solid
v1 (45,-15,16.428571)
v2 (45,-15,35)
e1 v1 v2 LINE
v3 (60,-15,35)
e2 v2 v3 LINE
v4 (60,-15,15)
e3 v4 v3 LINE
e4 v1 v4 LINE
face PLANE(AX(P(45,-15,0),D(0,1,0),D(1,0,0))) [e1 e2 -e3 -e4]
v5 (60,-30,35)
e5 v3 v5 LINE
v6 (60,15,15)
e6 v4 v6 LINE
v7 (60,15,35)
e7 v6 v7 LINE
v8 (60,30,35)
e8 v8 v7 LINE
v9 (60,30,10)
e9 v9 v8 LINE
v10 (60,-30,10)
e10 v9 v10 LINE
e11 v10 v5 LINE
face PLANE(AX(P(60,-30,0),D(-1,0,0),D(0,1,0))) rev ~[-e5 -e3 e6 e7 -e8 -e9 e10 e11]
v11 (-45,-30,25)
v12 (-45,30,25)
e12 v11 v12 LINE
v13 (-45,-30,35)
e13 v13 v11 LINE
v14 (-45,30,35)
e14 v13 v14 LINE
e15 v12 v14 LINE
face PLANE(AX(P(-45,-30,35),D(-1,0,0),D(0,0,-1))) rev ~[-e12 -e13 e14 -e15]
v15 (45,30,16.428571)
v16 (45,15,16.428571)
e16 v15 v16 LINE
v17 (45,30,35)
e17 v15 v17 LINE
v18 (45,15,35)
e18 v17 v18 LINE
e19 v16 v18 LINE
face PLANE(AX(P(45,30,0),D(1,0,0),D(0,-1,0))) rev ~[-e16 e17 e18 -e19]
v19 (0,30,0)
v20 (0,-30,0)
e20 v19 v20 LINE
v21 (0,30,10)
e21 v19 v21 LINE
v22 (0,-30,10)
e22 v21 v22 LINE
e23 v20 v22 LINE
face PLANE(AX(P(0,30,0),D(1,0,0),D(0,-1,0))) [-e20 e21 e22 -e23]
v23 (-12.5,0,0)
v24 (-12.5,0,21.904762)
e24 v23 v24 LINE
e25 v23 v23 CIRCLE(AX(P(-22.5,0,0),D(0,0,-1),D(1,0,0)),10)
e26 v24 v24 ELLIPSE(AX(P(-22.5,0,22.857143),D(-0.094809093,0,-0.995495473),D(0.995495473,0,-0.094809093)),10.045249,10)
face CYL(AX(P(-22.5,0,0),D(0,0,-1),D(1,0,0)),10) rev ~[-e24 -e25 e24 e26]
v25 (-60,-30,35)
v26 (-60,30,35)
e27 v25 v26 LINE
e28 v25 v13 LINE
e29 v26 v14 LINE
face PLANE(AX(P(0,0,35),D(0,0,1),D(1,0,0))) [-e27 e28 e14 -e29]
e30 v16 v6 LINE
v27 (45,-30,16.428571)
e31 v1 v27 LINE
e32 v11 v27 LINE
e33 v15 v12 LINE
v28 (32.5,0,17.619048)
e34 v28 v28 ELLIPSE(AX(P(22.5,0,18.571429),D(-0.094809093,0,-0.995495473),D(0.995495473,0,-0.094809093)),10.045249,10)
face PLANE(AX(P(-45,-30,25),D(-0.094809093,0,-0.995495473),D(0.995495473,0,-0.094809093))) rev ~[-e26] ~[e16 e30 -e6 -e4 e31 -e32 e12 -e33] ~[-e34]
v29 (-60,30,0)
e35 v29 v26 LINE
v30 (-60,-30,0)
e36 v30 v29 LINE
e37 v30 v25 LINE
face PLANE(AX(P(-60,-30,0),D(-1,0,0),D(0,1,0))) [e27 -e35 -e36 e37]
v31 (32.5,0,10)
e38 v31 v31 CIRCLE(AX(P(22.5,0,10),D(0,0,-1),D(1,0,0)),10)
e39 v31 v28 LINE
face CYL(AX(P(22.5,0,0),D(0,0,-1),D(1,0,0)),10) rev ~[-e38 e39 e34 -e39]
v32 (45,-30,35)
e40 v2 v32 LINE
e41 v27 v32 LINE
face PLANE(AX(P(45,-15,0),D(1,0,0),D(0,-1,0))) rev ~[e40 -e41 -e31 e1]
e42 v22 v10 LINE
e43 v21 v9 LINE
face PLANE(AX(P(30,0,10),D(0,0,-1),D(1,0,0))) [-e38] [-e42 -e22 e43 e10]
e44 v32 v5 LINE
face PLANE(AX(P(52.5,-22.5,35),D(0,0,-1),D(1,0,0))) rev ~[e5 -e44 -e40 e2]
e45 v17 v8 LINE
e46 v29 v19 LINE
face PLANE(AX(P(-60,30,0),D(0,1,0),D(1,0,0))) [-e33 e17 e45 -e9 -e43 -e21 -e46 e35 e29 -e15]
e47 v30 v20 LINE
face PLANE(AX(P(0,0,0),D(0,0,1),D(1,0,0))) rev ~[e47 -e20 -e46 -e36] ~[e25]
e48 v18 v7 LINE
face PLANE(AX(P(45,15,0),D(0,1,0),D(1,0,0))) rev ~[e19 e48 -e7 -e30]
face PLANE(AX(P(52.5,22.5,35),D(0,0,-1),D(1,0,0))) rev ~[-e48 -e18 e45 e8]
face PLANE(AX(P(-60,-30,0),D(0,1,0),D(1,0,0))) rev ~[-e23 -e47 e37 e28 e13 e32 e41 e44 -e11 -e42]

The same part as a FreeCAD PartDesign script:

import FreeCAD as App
import Part
import Sketcher

V = App.Vector
Q = App.Units.Quantity


def add_polygon(sketch, points):
    """Adds a closed chain of lines whose ends are joined by coincident constraints."""
    first, n = sketch.GeometryCount, len(points)
    for a, b in zip(points, points[1:] + points[:1]):
        sketch.addGeometry(Part.LineSegment(App.Vector(*a, 0), App.Vector(*b, 0)), False)
    for i in range(n):
        sketch.addConstraint(Sketcher.Constraint("Coincident", first + i, 2, first + (i + 1) % n, 1))

doc = App.newDocument("Part")
params = doc.addObject("Spreadsheet::Sheet", "Params")
for row, (alias, value) in enumerate([
    ("sketch1_width", "120 mm"),
    ("sketch1_height", "60 mm"),
    ("pad1_length", "35 mm"),
    ("sketch2_width", "105 mm"),
    ("sketch2_height", "10 mm"),
    ("sketch2_height2", "20 mm"),
    ("sketch3_width", "15 mm"),
    ("pad2_length", "35 mm"),
    ("sketch4_diameter", "20 mm"),
    ("sketch5_width", "60 mm"),
    ("pocket3_length", "10 mm"),
], start=1):
    params.set(f"A{row}", alias)
    params.set(f"B{row}", "=" + value)
    params.setAlias(f"B{row}", alias)

body = doc.addObject("PartDesign::Body", "Body")

# Sketch on XY plane
sketch1 = doc.addObject("Sketcher::SketchObject", "Sketch")
body.addObject(sketch1)
sketch1.AttachmentSupport = (doc.XY_Plane, [""])
sketch1.MapMode = "FlatFace"
add_polygon(sketch1, [(-60, 30), (-60, -30), (60, -30), (60, 30)])  # lines 0-3
sketch1.addConstraint([
    Sketcher.Constraint("Vertical", 0),
    Sketcher.Constraint("Horizontal", 1),
    Sketcher.Constraint("Vertical", 2),
    Sketcher.Constraint("Horizontal", 3),
    Sketcher.Constraint("Symmetric", 0, 2, 2, 2, -1, 1),
    Sketcher.Constraint("DistanceX", 1, 1, 1, 2, Q("120 mm")),
    Sketcher.Constraint("DistanceY", 0, 2, 0, 1, Q("60 mm")),
])
sketch1.setExpression("Constraints[9]", "Params.sketch1_width")
sketch1.setExpression("Constraints[10]", "Params.sketch1_height")
pad1 = doc.addObject("PartDesign::Pad", "Pad")
body.addObject(pad1)
pad1.Profile = sketch1
pad1.setExpression("Length", "Params.pad1_length")

# Sketch on XZ plane
sketch2 = doc.addObject("Sketcher::SketchObject", "Sketch001")
body.addObject(sketch2)
sketch2.AttachmentSupport = (doc.XZ_Plane, [""])
sketch2.MapMode = "FlatFace"
sketch2.AttachmentOffset = App.Placement(V(0, 0, 30), App.Rotation())
add_polygon(sketch2, [(-45, 35), (-45, 25), (60, 15), (60, 35)])  # lines 0-3
sketch2.addConstraint([
    Sketcher.Constraint("Vertical", 0),
    Sketcher.Constraint("Vertical", 2),
    Sketcher.Constraint("Horizontal", 3),
    Sketcher.Constraint("DistanceX", 3, 2, 3, 1, Q("105 mm")),
    Sketcher.Constraint("DistanceY", 0, 2, 0, 1, Q("10 mm")),
    Sketcher.Constraint("DistanceY", 2, 1, 2, 2, Q("20 mm")),
    Sketcher.Constraint("DistanceX", 0, 2, -1, 1, Q("45 mm")),
    Sketcher.Constraint("DistanceY", -1, 1, 0, 2, Q("25 mm")),
])
sketch2.setExpression("Constraints[7]", "Params.sketch2_width")
sketch2.setExpression("Constraints[8]", "Params.sketch2_height")
sketch2.setExpression("Constraints[9]", "Params.sketch2_height2")
pocket1 = doc.addObject("PartDesign::Pocket", "Pocket")
body.addObject(pocket1)
pocket1.Profile = sketch2
pocket1.Type = "ThroughAll"

# Sketch on XY plane
sketch3 = doc.addObject("Sketcher::SketchObject", "Sketch002")
body.addObject(sketch3)
sketch3.AttachmentSupport = (doc.XY_Plane, [""])
sketch3.MapMode = "FlatFace"
add_polygon(sketch3, [(45, -30), (45, -15), (60, -15), (60, -30)])  # lines 0-3
add_polygon(sketch3, [(45, 15), (45, 30), (60, 30), (60, 15)])  # lines 4-7
sketch3.addConstraint([
    Sketcher.Constraint("Vertical", 0),
    Sketcher.Constraint("Horizontal", 1),
    Sketcher.Constraint("Vertical", 2),
    Sketcher.Constraint("Horizontal", 3),
    Sketcher.Constraint("Vertical", 4),
    Sketcher.Constraint("Horizontal", 5),
    Sketcher.Constraint("Vertical", 6),
    Sketcher.Constraint("Horizontal", 7),
    Sketcher.Constraint("Symmetric", 3, 2, 4, 2, -1),
    Sketcher.Constraint("Symmetric", 1, 2, 6, 2, -1),
    Sketcher.Constraint("Equal", 7, 0),
    Sketcher.Constraint("DistanceX", 1, 1, 1, 2, Q("15 mm")),
    Sketcher.Constraint("DistanceX", -1, 1, 0, 2, Q("45 mm")),
    Sketcher.Constraint("DistanceY", 0, 2, -1, 1, Q("15 mm")),
])
sketch3.setExpression("Constraints[19]", "Params.sketch3_width")
pad2 = doc.addObject("PartDesign::Pad", "Pad001")
body.addObject(pad2)
pad2.Profile = sketch3
pad2.setExpression("Length", "Params.pad2_length")

# Sketch on XY plane
sketch4 = doc.addObject("Sketcher::SketchObject", "Sketch003")
body.addObject(sketch4)
sketch4.AttachmentSupport = (doc.XY_Plane, [""])
sketch4.MapMode = "FlatFace"
sketch4.addGeometry([
    Part.Circle(V(-22, 0, 0), V(0, 0, 1), 10),
    Part.Circle(V(22, 0, 0), V(0, 0, 1), 10),
], False)
sketch4.addConstraint([
    Sketcher.Constraint("Equal", 0, 1),
    Sketcher.Constraint("Symmetric", 0, 3, 1, 3, -1, 1),
    Sketcher.Constraint("PointOnObject", 0, 3, -1),
    Sketcher.Constraint("Diameter", 0, Q("20 mm")),
    Sketcher.Constraint("DistanceX", 0, 3, 1, 3, Q("45 mm")),
])
sketch4.setExpression("Constraints[3]", "Params.sketch4_diameter")
pocket2 = doc.addObject("PartDesign::Pocket", "Pocket001")
body.addObject(pocket2)
pocket2.Profile = sketch4
pocket2.Type = "ThroughAll"
pocket2.Reversed = True

# Sketch on XY plane
sketch5 = doc.addObject("Sketcher::SketchObject", "Sketch004")
body.addObject(sketch5)
sketch5.AttachmentSupport = (doc.XY_Plane, [""])
sketch5.MapMode = "FlatFace"
add_polygon(sketch5, [(0, -30), (0, 30), (60, 30), (60, -30)])  # lines 0-3
sketch5.addConstraint([
    Sketcher.Constraint("Vertical", 0),
    Sketcher.Constraint("Horizontal", 1),
    Sketcher.Constraint("Vertical", 2),
    Sketcher.Constraint("Horizontal", 3),
    Sketcher.Constraint("Symmetric", 0, 2, 3, 2, -1, 1),
    Sketcher.Constraint("Equal", 3, 0),
    Sketcher.Constraint("DistanceX", 1, 1, 1, 2, Q("60 mm")),
])
sketch5.setExpression("Constraints[10]", "Params.sketch5_width")
pocket3 = doc.addObject("PartDesign::Pocket", "Pocket002")
body.addObject(pocket3)
pocket3.Profile = sketch5
pocket3.setExpression("Length", "Params.pocket3_length")
pocket3.Reversed = True

doc.recompute()
